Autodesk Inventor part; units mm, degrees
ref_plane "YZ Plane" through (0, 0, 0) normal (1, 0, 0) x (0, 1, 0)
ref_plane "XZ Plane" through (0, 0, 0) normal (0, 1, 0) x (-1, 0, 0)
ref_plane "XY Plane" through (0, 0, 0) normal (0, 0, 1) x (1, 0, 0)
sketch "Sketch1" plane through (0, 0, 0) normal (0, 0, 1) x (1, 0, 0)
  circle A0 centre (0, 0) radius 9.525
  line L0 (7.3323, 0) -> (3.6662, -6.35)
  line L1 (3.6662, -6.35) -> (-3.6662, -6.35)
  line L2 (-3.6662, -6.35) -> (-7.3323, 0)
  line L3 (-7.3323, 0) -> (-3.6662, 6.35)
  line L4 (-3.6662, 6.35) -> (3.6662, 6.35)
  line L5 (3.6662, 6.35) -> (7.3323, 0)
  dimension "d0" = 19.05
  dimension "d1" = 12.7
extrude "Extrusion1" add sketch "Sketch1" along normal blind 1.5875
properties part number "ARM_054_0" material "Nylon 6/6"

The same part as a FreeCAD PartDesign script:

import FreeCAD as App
import Part
import Sketcher

V = App.Vector
Q = App.Units.Quantity


def add_polygon(sketch, points):
    """Adds a closed chain of lines whose ends are joined by coincident constraints."""
    first, n = sketch.GeometryCount, len(points)
    for a, b in zip(points, points[1:] + points[:1]):
        sketch.addGeometry(Part.LineSegment(App.Vector(*a, 0), App.Vector(*b, 0)), False)
    for i in range(n):
        sketch.addConstraint(Sketcher.Constraint("Coincident", first + i, 2, first + (i + 1) % n, 1))

doc = App.newDocument("Part")
body = doc.addObject("PartDesign::Body", "Body")

sketch1 = doc.addObject("Sketcher::SketchObject", "Sketch")
body.addObject(sketch1)
sketch1.AttachmentSupport = (doc.XY_Plane, [""])
sketch1.MapMode = "FlatFace"
sketch1.addGeometry(Part.Circle(V(0, 0, 0), V(0, 0, 1), 10), False)
add_polygon(sketch1, [(4, 6), (7, 0), (4, -6), (-4, -6), (-7, 0), (-4, 6)])
sketch1.addConstraint([
    Sketcher.Constraint("Horizontal", 3),
    Sketcher.Constraint("Horizontal", 6),
    Sketcher.Constraint("Coincident", 0, 3, -1, 1),
    Sketcher.Constraint("Symmetric", 1, 2, 4, 2, -1, 1),
    Sketcher.Constraint("Symmetric", 2, 2, 5, 2, -1, 1),
    Sketcher.Constraint("PointOnObject", 1, 2, -1),
    Sketcher.Constraint("Parallel", 1, 4),
    Sketcher.Constraint("Vertical", 3, 2, 5, 2),
    Sketcher.Constraint("Diameter", 0, Q("0.75 in")),
    Sketcher.Constraint("DistanceY", 3, 2, 5, 2, Q("0.5 in")),
    Sketcher.Constraint("Angle", 1, Q("-60.0005 deg")),
    Sketcher.Constraint("DistanceX", 3, 2, 1, 2, Q("0.433 in")),
])
pad1 = doc.addObject("PartDesign::Pad", "Pad")
body.addObject(pad1)
pad1.Profile = sketch1
pad1.Length = Q("0.0625 in")

doc.recompute()
